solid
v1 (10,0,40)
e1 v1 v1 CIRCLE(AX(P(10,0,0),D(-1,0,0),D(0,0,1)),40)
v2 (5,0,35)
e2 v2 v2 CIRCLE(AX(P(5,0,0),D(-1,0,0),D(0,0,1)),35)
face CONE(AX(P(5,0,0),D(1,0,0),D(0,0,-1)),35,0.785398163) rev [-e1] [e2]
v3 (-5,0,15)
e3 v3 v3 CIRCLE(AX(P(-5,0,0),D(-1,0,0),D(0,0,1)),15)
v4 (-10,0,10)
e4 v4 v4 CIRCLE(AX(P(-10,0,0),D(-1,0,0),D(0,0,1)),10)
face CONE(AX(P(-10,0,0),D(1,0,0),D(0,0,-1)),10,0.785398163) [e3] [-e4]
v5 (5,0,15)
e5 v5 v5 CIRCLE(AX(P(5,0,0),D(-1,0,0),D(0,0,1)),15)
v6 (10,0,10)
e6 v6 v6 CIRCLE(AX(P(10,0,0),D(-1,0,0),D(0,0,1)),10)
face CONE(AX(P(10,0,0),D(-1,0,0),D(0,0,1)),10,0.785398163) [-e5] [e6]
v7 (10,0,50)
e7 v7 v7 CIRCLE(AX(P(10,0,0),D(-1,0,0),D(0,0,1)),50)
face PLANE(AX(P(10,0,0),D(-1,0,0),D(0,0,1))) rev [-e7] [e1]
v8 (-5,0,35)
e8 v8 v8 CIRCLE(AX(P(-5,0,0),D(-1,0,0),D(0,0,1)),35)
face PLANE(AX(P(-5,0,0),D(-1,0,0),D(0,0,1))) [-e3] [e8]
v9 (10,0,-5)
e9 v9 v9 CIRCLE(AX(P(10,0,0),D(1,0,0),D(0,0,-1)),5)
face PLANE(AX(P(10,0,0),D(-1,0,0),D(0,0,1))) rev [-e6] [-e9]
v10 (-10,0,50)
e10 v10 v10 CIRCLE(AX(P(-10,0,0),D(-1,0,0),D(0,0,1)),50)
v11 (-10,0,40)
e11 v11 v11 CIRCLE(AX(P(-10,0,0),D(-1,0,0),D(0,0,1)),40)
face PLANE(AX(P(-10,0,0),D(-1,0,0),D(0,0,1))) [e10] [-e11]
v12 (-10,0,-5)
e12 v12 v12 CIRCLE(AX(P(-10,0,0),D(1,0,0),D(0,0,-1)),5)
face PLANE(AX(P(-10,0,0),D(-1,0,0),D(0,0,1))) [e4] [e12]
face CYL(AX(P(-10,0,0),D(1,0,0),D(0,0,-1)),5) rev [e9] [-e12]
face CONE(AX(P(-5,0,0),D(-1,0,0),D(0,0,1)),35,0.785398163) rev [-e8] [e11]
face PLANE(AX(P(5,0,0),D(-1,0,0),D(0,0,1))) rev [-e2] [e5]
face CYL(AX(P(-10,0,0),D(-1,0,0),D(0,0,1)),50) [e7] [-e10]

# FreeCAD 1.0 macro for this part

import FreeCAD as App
import Part
import Sketcher

V = App.Vector


def add_polygon(sketch, points):
    """Adds a closed chain of lines whose ends are joined by coincident constraints."""
    first, n = sketch.GeometryCount, len(points)
    for a, b in zip(points, points[1:] + points[:1]):
        sketch.addGeometry(Part.LineSegment(App.Vector(*a, 0), App.Vector(*b, 0)), False)
    for i in range(n):
        sketch.addConstraint(Sketcher.Constraint("Coincident", first + i, 2, first + (i + 1) % n, 1))

doc = App.newDocument("Part")
body = doc.addObject("PartDesign::Body", "Body")

# Sketch on XY plane
sketch1 = body.newObject("Sketcher::SketchObject", "Sketch")
sketch1.AttachmentSupport = (doc.getObject("XY_Plane"), [""])
sketch1.MapMode = "FlatFace"
add_polygon(sketch1, [(-10, 10), (-10, 0), (10, 0), (10, 10), (5, 15), (5, 35), (10, 40), (10, 50), (-10, 50), (-10, 40), (-5, 35), (-5, 15)])  # lines 0-11
sketch1.addConstraint([
    Sketcher.Constraint("Vertical", 0),
    Sketcher.Constraint("Horizontal", 1),
    Sketcher.Constraint("Vertical", 2),
    Sketcher.Constraint("Vertical", 4),
    Sketcher.Constraint("Vertical", 6),
    Sketcher.Constraint("Horizontal", 7),
    Sketcher.Constraint("Vertical", 8),
    Sketcher.Constraint("Vertical", 10),
    Sketcher.Constraint("Symmetric", 0, 2, 1, 2, -1, 1),
    Sketcher.Constraint("Symmetric", 5, 2, 8, 2, -2),
    Sketcher.Constraint("Symmetric", 4, 2, 9, 2, -2),
    Sketcher.Constraint("Perpendicular", 3, 5),
    Sketcher.Constraint("Perpendicular", 5, 9),
    Sketcher.Constraint("Perpendicular", 9, 11),
    Sketcher.Constraint("Horizontal", 3, 2, 10, 2),
    Sketcher.Constraint("Vertical", 2, 2, 5, 2),
    Sketcher.Constraint("Equal", 7, 4),
    Sketcher.Constraint("Equal", 2, 6),
    Sketcher.Constraint("DistanceX", 1, 1, 1, 2, 20.0),
    Sketcher.Constraint("DistanceY", 0, 2, 0, 1, 10.0),
    Sketcher.Constraint("DistanceX", -1, 1, 3, 2, 5.0),
])
revolution = body.newObject("PartDesign::Revolution", "Revolution")
revolution.Profile = sketch1
revolution.ReferenceAxis = (sketch1, ["H_Axis"])
revolution.Angle = 360

# Sketch on YZ plane
sketch2 = body.newObject("Sketcher::SketchObject", "Sketch001")
sketch2.AttachmentSupport = (doc.getObject("YZ_Plane"), [""])
sketch2.MapMode = "FlatFace"
sketch2.AttachmentOffset = App.Placement(V(0, 0, 10), App.Rotation())
sketch2.addGeometry(Part.Circle(V(0, 0, 0), V(0, 0, 1), 5), False)
sketch2.addConstraint([
    Sketcher.Constraint("Coincident", 0, 3, -1, 1),
    Sketcher.Constraint("Diameter", 0, 10.0),
])
pocket1 = body.newObject("PartDesign::Pocket", "Pocket")
pocket1.Profile = sketch2
pocket1.Type = "ThroughAll"

doc.recompute()
